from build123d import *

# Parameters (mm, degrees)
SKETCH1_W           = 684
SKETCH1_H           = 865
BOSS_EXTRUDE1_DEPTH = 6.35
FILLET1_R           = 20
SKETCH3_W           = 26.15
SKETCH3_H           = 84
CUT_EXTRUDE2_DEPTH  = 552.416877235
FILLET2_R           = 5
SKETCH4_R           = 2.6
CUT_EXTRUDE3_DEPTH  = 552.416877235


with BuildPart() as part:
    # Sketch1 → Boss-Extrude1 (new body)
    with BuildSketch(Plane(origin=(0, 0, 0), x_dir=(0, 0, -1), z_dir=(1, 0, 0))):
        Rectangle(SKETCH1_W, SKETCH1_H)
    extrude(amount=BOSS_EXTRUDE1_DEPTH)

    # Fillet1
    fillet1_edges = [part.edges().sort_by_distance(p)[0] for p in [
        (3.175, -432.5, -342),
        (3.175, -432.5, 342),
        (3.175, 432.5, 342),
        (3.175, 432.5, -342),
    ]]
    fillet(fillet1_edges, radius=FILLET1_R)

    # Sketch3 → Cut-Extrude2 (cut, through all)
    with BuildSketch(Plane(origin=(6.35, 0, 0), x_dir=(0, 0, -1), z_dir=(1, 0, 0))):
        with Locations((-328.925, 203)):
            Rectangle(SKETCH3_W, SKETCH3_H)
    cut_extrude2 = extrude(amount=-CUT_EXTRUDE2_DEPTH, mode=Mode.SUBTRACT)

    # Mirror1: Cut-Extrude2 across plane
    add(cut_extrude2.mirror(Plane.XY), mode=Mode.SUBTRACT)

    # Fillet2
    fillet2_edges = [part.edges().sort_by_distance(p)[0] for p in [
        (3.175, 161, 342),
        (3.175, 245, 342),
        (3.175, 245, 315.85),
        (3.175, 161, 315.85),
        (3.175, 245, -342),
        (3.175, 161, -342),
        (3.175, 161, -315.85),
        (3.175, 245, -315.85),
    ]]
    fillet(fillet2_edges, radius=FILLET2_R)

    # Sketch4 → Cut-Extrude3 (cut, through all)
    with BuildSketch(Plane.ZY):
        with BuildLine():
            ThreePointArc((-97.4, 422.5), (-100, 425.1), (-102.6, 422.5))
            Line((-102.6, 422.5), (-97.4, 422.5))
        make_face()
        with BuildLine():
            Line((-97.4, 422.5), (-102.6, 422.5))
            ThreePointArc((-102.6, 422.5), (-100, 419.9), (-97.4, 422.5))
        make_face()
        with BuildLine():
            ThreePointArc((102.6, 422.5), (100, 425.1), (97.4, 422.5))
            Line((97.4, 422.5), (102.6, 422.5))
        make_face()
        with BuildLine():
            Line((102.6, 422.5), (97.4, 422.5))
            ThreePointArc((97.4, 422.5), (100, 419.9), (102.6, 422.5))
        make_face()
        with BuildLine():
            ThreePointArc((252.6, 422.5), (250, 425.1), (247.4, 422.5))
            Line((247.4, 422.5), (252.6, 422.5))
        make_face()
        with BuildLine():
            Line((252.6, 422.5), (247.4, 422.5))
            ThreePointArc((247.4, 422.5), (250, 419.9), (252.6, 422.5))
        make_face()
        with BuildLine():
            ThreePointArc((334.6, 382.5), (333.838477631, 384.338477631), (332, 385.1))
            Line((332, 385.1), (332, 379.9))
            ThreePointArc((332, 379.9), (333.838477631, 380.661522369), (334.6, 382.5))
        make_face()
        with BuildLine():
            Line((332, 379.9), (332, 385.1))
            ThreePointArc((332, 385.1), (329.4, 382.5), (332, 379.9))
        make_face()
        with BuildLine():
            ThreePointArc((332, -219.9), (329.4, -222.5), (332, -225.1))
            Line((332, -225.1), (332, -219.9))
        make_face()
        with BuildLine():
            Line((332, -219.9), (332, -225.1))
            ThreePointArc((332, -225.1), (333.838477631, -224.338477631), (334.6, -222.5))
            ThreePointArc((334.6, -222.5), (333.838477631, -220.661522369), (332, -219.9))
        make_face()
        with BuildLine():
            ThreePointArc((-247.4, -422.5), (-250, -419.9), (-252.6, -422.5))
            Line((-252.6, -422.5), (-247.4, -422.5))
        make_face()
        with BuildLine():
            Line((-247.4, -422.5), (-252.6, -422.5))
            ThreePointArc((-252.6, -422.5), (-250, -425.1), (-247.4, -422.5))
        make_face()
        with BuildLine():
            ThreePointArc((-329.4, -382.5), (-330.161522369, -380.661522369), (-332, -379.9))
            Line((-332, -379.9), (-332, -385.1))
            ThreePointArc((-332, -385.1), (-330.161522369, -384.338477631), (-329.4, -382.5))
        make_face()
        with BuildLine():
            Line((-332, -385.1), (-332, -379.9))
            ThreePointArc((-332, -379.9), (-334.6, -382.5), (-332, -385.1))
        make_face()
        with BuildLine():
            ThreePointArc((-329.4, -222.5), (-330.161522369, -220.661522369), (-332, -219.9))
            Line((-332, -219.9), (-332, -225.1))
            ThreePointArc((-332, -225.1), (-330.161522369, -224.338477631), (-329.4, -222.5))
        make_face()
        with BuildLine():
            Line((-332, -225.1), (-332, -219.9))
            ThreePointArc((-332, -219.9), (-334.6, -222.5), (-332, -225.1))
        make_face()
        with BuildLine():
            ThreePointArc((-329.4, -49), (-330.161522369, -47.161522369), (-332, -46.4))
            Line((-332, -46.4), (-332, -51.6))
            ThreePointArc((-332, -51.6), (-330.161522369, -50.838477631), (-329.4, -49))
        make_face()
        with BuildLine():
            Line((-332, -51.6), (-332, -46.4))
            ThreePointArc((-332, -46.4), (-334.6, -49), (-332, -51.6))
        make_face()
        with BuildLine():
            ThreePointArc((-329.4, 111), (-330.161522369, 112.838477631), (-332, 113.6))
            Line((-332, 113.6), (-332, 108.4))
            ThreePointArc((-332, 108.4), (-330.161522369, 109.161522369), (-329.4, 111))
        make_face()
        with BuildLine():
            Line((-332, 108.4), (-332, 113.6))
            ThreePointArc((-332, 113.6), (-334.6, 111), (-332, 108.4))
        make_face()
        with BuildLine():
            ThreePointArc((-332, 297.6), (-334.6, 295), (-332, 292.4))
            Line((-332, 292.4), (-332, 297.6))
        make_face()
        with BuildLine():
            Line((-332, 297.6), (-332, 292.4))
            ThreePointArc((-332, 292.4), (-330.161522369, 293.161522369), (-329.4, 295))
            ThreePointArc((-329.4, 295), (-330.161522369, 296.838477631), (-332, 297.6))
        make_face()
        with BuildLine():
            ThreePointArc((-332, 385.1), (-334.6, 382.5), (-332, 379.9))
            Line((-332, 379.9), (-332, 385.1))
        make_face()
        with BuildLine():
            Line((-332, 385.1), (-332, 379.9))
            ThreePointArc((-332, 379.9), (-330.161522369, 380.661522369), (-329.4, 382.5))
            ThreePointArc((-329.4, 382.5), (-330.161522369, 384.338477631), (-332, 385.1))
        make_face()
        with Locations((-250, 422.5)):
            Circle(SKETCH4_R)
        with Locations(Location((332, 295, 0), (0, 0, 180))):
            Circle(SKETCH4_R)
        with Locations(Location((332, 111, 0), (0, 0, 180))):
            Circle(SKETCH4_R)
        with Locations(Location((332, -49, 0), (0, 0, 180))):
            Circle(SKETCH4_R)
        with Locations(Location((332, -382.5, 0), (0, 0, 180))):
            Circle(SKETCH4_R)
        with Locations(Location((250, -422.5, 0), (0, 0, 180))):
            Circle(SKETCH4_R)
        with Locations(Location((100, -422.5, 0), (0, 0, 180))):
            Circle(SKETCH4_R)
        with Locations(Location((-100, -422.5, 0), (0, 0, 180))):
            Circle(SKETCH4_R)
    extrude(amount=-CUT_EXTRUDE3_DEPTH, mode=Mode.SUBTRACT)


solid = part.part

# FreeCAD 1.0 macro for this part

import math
import FreeCAD as App
import Part
import Sketcher

V = App.Vector
Q = App.Units.Quantity


def edges_at(feature, points):
    """Names of the edges that pass closest to the given points."""
    edges = feature.Shape.Edges
    near = lambda p: min(range(len(edges)), key=lambda i: edges[i].distToShape(Part.Vertex(*p))[0])
    return sorted({f"Edge{near(p) + 1}" for p in points})


def add_polygon(sketch, points):
    """Adds a closed chain of lines whose ends are joined by coincident constraints."""
    first, n = sketch.GeometryCount, len(points)
    for a, b in zip(points, points[1:] + points[:1]):
        sketch.addGeometry(Part.LineSegment(App.Vector(*a, 0), App.Vector(*b, 0)), False)
    for i in range(n):
        sketch.addConstraint(Sketcher.Constraint("Coincident", first + i, 2, first + (i + 1) % n, 1))

doc = App.newDocument("Part")
body = doc.addObject("PartDesign::Body", "Body")

# Sketch on YZ plane
sketch1 = body.newObject("Sketcher::SketchObject", "Sketch")
sketch1.AttachmentSupport = (doc.getObject("YZ_Plane"), [""])
sketch1.MapMode = "FlatFace"
add_polygon(sketch1, [(432, 342), (-432, 342), (-432, -342), (432, -342)])  # lines 0-3
sketch1.addConstraint(Sketcher.Constraint("Horizontal", 0))
sketch1.addConstraint(Sketcher.Constraint("Vertical", 1))
sketch1.addConstraint(Sketcher.Constraint("Horizontal", 2))
sketch1.addConstraint(Sketcher.Constraint("Vertical", 3))
sketch1.addConstraint(Sketcher.Constraint("Symmetric", 0, 2, 2, 2, -1, 1))
sketch1.addConstraint(Sketcher.Constraint("DistanceX", 0, 2, 0, 1, Q("865 mm")))
sketch1.addConstraint(Sketcher.Constraint("DistanceY", 1, 2, 1, 1, Q("684 mm")))
pad1 = body.newObject("PartDesign::Pad", "Pad")
pad1.Profile = sketch1
pad1.Length = 6.35
doc.recompute()

fillet = body.newObject("PartDesign::Fillet", "Fillet")
fillet.Base = (pad1, edges_at(pad1, [
    (3.175, -432.5, -342),
    (3.175, -432.5, 342),
    (3.175, 432.5, 342),
    (3.175, 432.5, -342),
]))
fillet.Radius = 20

# Sketch on YZ plane
sketch2 = body.newObject("Sketcher::SketchObject", "Sketch001")
sketch2.AttachmentSupport = (doc.getObject("YZ_Plane"), [""])
sketch2.MapMode = "FlatFace"
sketch2.AttachmentOffset = App.Placement(V(0, 0, 6.35), App.Rotation())
add_polygon(sketch2, [(245, 342), (161, 342), (161, 316), (245, 316)])  # lines 0-3
sketch2.addConstraint(Sketcher.Constraint("Horizontal", 0))
sketch2.addConstraint(Sketcher.Constraint("Vertical", 1))
sketch2.addConstraint(Sketcher.Constraint("Horizontal", 2))
sketch2.addConstraint(Sketcher.Constraint("Vertical", 3))
sketch2.addConstraint(Sketcher.Constraint("DistanceX", 0, 2, 0, 1, Q("84 mm")))
sketch2.addConstraint(Sketcher.Constraint("DistanceX", -1, 1, 0, 2, Q("161 mm")))
sketch2.addConstraint(Sketcher.Constraint("DistanceY", -1, 1, 0, 2, Q("342 mm")))
sketch2.addConstraint(Sketcher.Constraint("DistanceY", 1, 2, 1, 1, Q("26.15 mm")))
pocket1 = body.newObject("PartDesign::Pocket", "Pocket")
pocket1.Profile = sketch2
pocket1.Type = "ThroughAll"
doc.recompute()

mirrored = body.newObject("PartDesign::Mirrored", "Mirrored")
mirrored.Originals = [pocket1]
mirrored.MirrorPlane = (doc.getObject("XY_Plane"), [""])
body.Tip = mirrored
doc.recompute()

fillet2 = body.newObject("PartDesign::Fillet", "Fillet001")
fillet2.Base = (mirrored, edges_at(mirrored, [
    (3.175, 161, 342),
    (3.175, 245, 342),
    (3.175, 245, 315.85),
    (3.175, 161, 315.85),
    (3.175, 245, -342),
    (3.175, 161, -342),
    (3.175, 161, -315.85),
    (3.175, 245, -315.85),
]))
fillet2.Radius = 5

# Sketch on YZ plane
sketch3 = body.newObject("Sketcher::SketchObject", "Sketch002")
sketch3.AttachmentSupport = (doc.getObject("YZ_Plane"), [""])
sketch3.MapMode = "FlatFace"
sketch3.addGeometry(Part.Circle(V(422.5, -100, 0), V(0, 0, 1), 2.6), False)
sketch3.addGeometry(Part.Circle(V(422.5, 100, 0), V(0, 0, 1), 2.6), False)
sketch3.addGeometry(Part.Circle(V(422.5, 250, 0), V(0, 0, 1), 2.6), False)
sketch3.addGeometry(Part.ArcOfCircle(Part.Circle(V(382.5, 332, 0), V(0, 0, 1), 2.6), math.radians(0), math.radians(90)), False)
sketch3.addGeometry(Part.ArcOfCircle(Part.Circle(V(382.5, 332, 0), V(0, 0, 1), 2.6), math.radians(180), math.radians(360)), False)
sketch3.addGeometry(Part.ArcOfCircle(Part.Circle(V(382.5, 332, 0), V(0, 0, 1), 2.6), math.radians(90), math.radians(180)), False)
sketch3.addGeometry(Part.ArcOfCircle(Part.Circle(V(-222.5, 332, 0), V(0, 0, 1), 2.6), math.radians(180), math.radians(360)), False)
sketch3.addGeometry(Part.ArcOfCircle(Part.Circle(V(-222.5, 332, 0), V(0, 0, 1), 2.6), math.radians(90), math.radians(180)), False)
sketch3.addGeometry(Part.ArcOfCircle(Part.Circle(V(-222.5, 332, 0), V(0, 0, 1), 2.6), math.radians(0), math.radians(90)), False)
sketch3.addGeometry(Part.Circle(V(-422.5, -250, 0), V(0, 0, 1), 2.6), False)
sketch3.addGeometry(Part.ArcOfCircle(Part.Circle(V(-382.5, -332, 0), V(0, 0, 1), 2.6), math.radians(0), math.radians(90)), False)
sketch3.addGeometry(Part.ArcOfCircle(Part.Circle(V(-382.5, -332, 0), V(0, 0, 1), 2.6), math.radians(180), math.radians(360)), False)
sketch3.addGeometry(Part.ArcOfCircle(Part.Circle(V(-382.5, -332, 0), V(0, 0, 1), 2.6), math.radians(90), math.radians(180)), False)
sketch3.addGeometry(Part.ArcOfCircle(Part.Circle(V(-222.5, -332, 0), V(0, 0, 1), 2.6), math.radians(0), math.radians(90)), False)
sketch3.addGeometry(Part.ArcOfCircle(Part.Circle(V(-222.5, -332, 0), V(0, 0, 1), 2.6), math.radians(180), math.radians(360)), False)
sketch3.addGeometry(Part.ArcOfCircle(Part.Circle(V(-222.5, -332, 0), V(0, 0, 1), 2.6), math.radians(90), math.radians(180)), False)
sketch3.addGeometry(Part.ArcOfCircle(Part.Circle(V(-49, -332, 0), V(0, 0, 1), 2.6), math.radians(0), math.radians(90)), False)
sketch3.addGeometry(Part.ArcOfCircle(Part.Circle(V(-49, -332, 0), V(0, 0, 1), 2.6), math.radians(180), math.radians(360)), False)
sketch3.addGeometry(Part.ArcOfCircle(Part.Circle(V(-49, -332, 0), V(0, 0, 1), 2.6), math.radians(90), math.radians(180)), False)
sketch3.addGeometry(Part.ArcOfCircle(Part.Circle(V(111, -332, 0), V(0, 0, 1), 2.6), math.radians(0), math.radians(90)), False)
sketch3.addGeometry(Part.ArcOfCircle(Part.Circle(V(111, -332, 0), V(0, 0, 1), 2.6), math.radians(180), math.radians(360)), False)
sketch3.addGeometry(Part.ArcOfCircle(Part.Circle(V(111, -332, 0), V(0, 0, 1), 2.6), math.radians(90), math.radians(180)), False)
sketch3.addGeometry(Part.ArcOfCircle(Part.Circle(V(295, -332, 0), V(0, 0, 1), 2.6), math.radians(180), math.radians(360)), False)
sketch3.addGeometry(Part.ArcOfCircle(Part.Circle(V(295, -332, 0), V(0, 0, 1), 2.6), math.radians(90), math.radians(180)), False)
sketch3.addGeometry(Part.ArcOfCircle(Part.Circle(V(295, -332, 0), V(0, 0, 1), 2.6), math.radians(0), math.radians(90)), False)
sketch3.addGeometry(Part.ArcOfCircle(Part.Circle(V(382.5, -332, 0), V(0, 0, 1), 2.6), math.radians(180), math.radians(360)), False)
sketch3.addGeometry(Part.ArcOfCircle(Part.Circle(V(382.5, -332, 0), V(0, 0, 1), 2.6), math.radians(90), math.radians(180)), False)
sketch3.addGeometry(Part.ArcOfCircle(Part.Circle(V(382.5, -332, 0), V(0, 0, 1), 2.6), math.radians(0), math.radians(90)), False)
sketch3.addGeometry(Part.Circle(V(422.5, -250, 0), V(0, 0, 1), 2.6), False)
sketch3.addGeometry(Part.Circle(V(295, 332, 0), V(0, 0, 1), 2.6), False)
sketch3.addGeometry(Part.Circle(V(111, 332, 0), V(0, 0, 1), 2.6), False)
sketch3.addGeometry(Part.Circle(V(-49, 332, 0), V(0, 0, 1), 2.6), False)
sketch3.addGeometry(Part.Circle(V(-382.5, 332, 0), V(0, 0, 1), 2.6), False)
sketch3.addGeometry(Part.Circle(V(-422.5, 250, 0), V(0, 0, 1), 2.6), False)
sketch3.addGeometry(Part.Circle(V(-422.5, 100, 0), V(0, 0, 1), 2.6), False)
sketch3.addGeometry(Part.Circle(V(-422.5, -100, 0), V(0, 0, 1), 2.6), False)
sketch3.addConstraint(Sketcher.Constraint("Tangent", 3, 1, 4, 2))
sketch3.addConstraint(Sketcher.Constraint("Tangent", 4, 1, 5, 2))
sketch3.addConstraint(Sketcher.Constraint("Tangent", 5, 1, 3, 2))
sketch3.addConstraint(Sketcher.Constraint("Tangent", 6, 1, 7, 2))
sketch3.addConstraint(Sketcher.Constraint("Tangent", 7, 1, 8, 2))
sketch3.addConstraint(Sketcher.Constraint("Tangent", 8, 1, 6, 2))
sketch3.addConstraint(Sketcher.Constraint("Tangent", 10, 1, 11, 2))
sketch3.addConstraint(Sketcher.Constraint("Tangent", 11, 1, 12, 2))
sketch3.addConstraint(Sketcher.Constraint("Tangent", 12, 1, 10, 2))
sketch3.addConstraint(Sketcher.Constraint("Tangent", 13, 1, 14, 2))
sketch3.addConstraint(Sketcher.Constraint("Tangent", 14, 1, 15, 2))
sketch3.addConstraint(Sketcher.Constraint("Tangent", 15, 1, 13, 2))
sketch3.addConstraint(Sketcher.Constraint("Tangent", 16, 1, 17, 2))
sketch3.addConstraint(Sketcher.Constraint("Tangent", 17, 1, 18, 2))
sketch3.addConstraint(Sketcher.Constraint("Tangent", 18, 1, 16, 2))
sketch3.addConstraint(Sketcher.Constraint("Tangent", 19, 1, 20, 2))
sketch3.addConstraint(Sketcher.Constraint("Tangent", 20, 1, 21, 2))
sketch3.addConstraint(Sketcher.Constraint("Tangent", 21, 1, 19, 2))
sketch3.addConstraint(Sketcher.Constraint("Tangent", 22, 1, 23, 2))
sketch3.addConstraint(Sketcher.Constraint("Tangent", 23, 1, 24, 2))
sketch3.addConstraint(Sketcher.Constraint("Tangent", 24, 1, 22, 2))
sketch3.addConstraint(Sketcher.Constraint("Tangent", 25, 1, 26, 2))
sketch3.addConstraint(Sketcher.Constraint("Tangent", 26, 1, 27, 2))
sketch3.addConstraint(Sketcher.Constraint("Tangent", 27, 1, 25, 2))
sketch3.addConstraint(Sketcher.Constraint("Equal", 0, 1))
sketch3.addConstraint(Sketcher.Constraint("Equal", 1, 2))
sketch3.addConstraint(Sketcher.Constraint("Equal", 2, 3))
sketch3.addConstraint(Sketcher.Constraint("Equal", 5, 6))
sketch3.addConstraint(Sketcher.Constraint("Equal", 8, 9))
sketch3.addConstraint(Sketcher.Constraint("Equal", 9, 10))
sketch3.addConstraint(Sketcher.Constraint("Equal", 12, 13))
sketch3.addConstraint(Sketcher.Constraint("Equal", 15, 16))
sketch3.addConstraint(Sketcher.Constraint("Equal", 18, 19))
sketch3.addConstraint(Sketcher.Constraint("Equal", 21, 22))
sketch3.addConstraint(Sketcher.Constraint("Equal", 24, 25))
sketch3.addConstraint(Sketcher.Constraint("Equal", 27, 28))
sketch3.addConstraint(Sketcher.Constraint("Equal", 28, 29))
sketch3.addConstraint(Sketcher.Constraint("Equal", 29, 30))
sketch3.addConstraint(Sketcher.Constraint("Equal", 30, 31))
sketch3.addConstraint(Sketcher.Constraint("Equal", 31, 32))
sketch3.addConstraint(Sketcher.Constraint("Equal", 32, 33))
sketch3.addConstraint(Sketcher.Constraint("Equal", 33, 34))
sketch3.addConstraint(Sketcher.Constraint("Equal", 34, 35))
sketch3.addConstraint(Sketcher.Constraint("Symmetric", 2, 3, 9, 3, -1, 1))
sketch3.addConstraint(Sketcher.Constraint("Symmetric", 3, 3, 10, 3, -1, 1))
sketch3.addConstraint(Sketcher.Constraint("Symmetric", 25, 3, 32, 3, -1, 1))
sketch3.addConstraint(Sketcher.Constraint("Symmetric", 28, 3, 33, 3, -1, 1))
sketch3.addConstraint(Sketcher.Constraint("Symmetric", 0, 3, 34, 3, -1, 1))
sketch3.addConstraint(Sketcher.Constraint("Symmetric", 1, 3, 35, 3, -1, 1))
sketch3.addConstraint(Sketcher.Constraint("Symmetric", 10, 3, 25, 3, -2))
sketch3.addConstraint(Sketcher.Constraint("Symmetric", 9, 3, 28, 3, -2))
sketch3.addConstraint(Sketcher.Constraint("Symmetric", 1, 3, 34, 3, -2))
sketch3.addConstraint(Sketcher.Constraint("Symmetric", 6, 3, 13, 3, -1))
sketch3.addConstraint(Sketcher.Constraint("Symmetric", 22, 3, 29, 3, -1))
sketch3.addConstraint(Sketcher.Constraint("Symmetric", 19, 3, 30, 3, -1))
sketch3.addConstraint(Sketcher.Constraint("Symmetric", 16, 3, 31, 3, -1))
sketch3.addConstraint(Sketcher.Constraint("Horizontal", 5, 3, 6, 3))
sketch3.addConstraint(Sketcher.Constraint("Horizontal", 15, 3, 16, 3))
sketch3.addConstraint(Sketcher.Constraint("Horizontal", 18, 3, 19, 3))
sketch3.addConstraint(Sketcher.Constraint("Horizontal", 21, 3, 22, 3))
sketch3.addConstraint(Sketcher.Constraint("Horizontal", 32, 3, 3, 1))
sketch3.addConstraint(Sketcher.Constraint("Horizontal", 3, 1, 4, 1))
sketch3.addConstraint(Sketcher.Constraint("Horizontal", 4, 1, 6, 1))
sketch3.addConstraint(Sketcher.Constraint("Horizontal", 6, 1, 8, 1))
sketch3.addConstraint(Sketcher.Constraint("Horizontal", 27, 3, 10, 1))
sketch3.addConstraint(Sketcher.Constraint("Horizontal", 10, 1, 11, 1))
sketch3.addConstraint(Sketcher.Constraint("Horizontal", 11, 1, 13, 1))
sketch3.addConstraint(Sketcher.Constraint("Horizontal", 13, 1, 14, 1))
sketch3.addConstraint(Sketcher.Constraint("Horizontal", 14, 1, 16, 1))
sketch3.addConstraint(Sketcher.Constraint("Horizontal", 16, 1, 17, 1))
sketch3.addConstraint(Sketcher.Constraint("Horizontal", 17, 1, 19, 1))
sketch3.addConstraint(Sketcher.Constraint("Horizontal", 19, 1, 20, 1))
sketch3.addConstraint(Sketcher.Constraint("Horizontal", 20, 1, 22, 1))
sketch3.addConstraint(Sketcher.Constraint("Horizontal", 22, 1, 24, 1))
sketch3.addConstraint(Sketcher.Constraint("Horizontal", 24, 1, 25, 1))
sketch3.addConstraint(Sketcher.Constraint("Horizontal", 25, 1, 27, 1))
sketch3.addConstraint(Sketcher.Constraint("Vertical", 1, 3, 2, 3))
sketch3.addConstraint(Sketcher.Constraint("Vertical", 27, 3, 5, 1))
sketch3.addConstraint(Sketcher.Constraint("Vertical", 15, 3, 7, 1))
sketch3.addConstraint(Sketcher.Constraint("Vertical", 32, 3, 12, 1))
sketch3.addConstraint(Sketcher.Constraint("Vertical", 7, 1, 15, 1))
sketch3.addConstraint(Sketcher.Constraint("Vertical", 31, 3, 18, 1))
sketch3.addConstraint(Sketcher.Constraint("Vertical", 30, 3, 21, 1))
sketch3.addConstraint(Sketcher.Constraint("Vertical", 29, 3, 23, 1))
sketch3.addConstraint(Sketcher.Constraint("Vertical", 5, 1, 26, 1))
sketch3.addConstraint(Sketcher.Constraint("Diameter", 0, Q("5.2 mm")))
sketch3.addConstraint(Sketcher.Constraint("DistanceY", 0, 3, -1, 1, Q("100 mm")))
sketch3.addConstraint(Sketcher.Constraint("DistanceY", -1, 1, 2, 3, Q("250 mm")))
sketch3.addConstraint(Sketcher.Constraint("DistanceY", -1, 1, 3, 3, Q("332 mm")))
sketch3.addConstraint(Sketcher.Constraint("DistanceX", 16, 3, -1, 1, Q("49 mm")))
sketch3.addConstraint(Sketcher.Constraint("DistanceX", -1, 1, 19, 3, Q("111 mm")))
sketch3.addConstraint(Sketcher.Constraint("DistanceX", -1, 1, 22, 3, Q("295 mm")))
sketch3.addConstraint(Sketcher.Constraint("DistanceX", 3, 3, 2, 3, Q("40 mm")))
sketch3.addConstraint(Sketcher.Constraint("DistanceX", 6, 3, 3, 3, Q("605 mm")))
sketch3.addConstraint(Sketcher.Constraint("DistanceX", 9, 3, 6, 3, Q("200 mm")))
pocket2 = body.newObject("PartDesign::Pocket", "Pocket001")
pocket2.Profile = sketch3
pocket2.Type = "ThroughAll"
pocket2.Reversed = True

doc.recompute()
